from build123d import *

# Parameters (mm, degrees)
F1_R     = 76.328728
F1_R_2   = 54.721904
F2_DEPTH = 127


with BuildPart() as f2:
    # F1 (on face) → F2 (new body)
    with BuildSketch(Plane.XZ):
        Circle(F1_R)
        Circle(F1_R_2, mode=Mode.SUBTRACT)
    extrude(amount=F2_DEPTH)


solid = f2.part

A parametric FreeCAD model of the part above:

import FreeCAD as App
import Part
import Sketcher

V = App.Vector

doc = App.newDocument("Part")
params = doc.addObject("Spreadsheet::Sheet", "Params")
for row, (alias, value) in enumerate([
    ("pad1_length", "5 in"),
], start=1):
    params.set(f"A{row}", alias)
    params.set(f"B{row}", "=" + value)
    params.setAlias(f"B{row}", alias)

body = doc.addObject("PartDesign::Body", "Body")

# Sketch on XZ plane
sketch1 = body.newObject("Sketcher::SketchObject", "Sketch")
sketch1.AttachmentSupport = (doc.getObject("XZ_Plane"), [""])
sketch1.MapMode = "FlatFace"
sketch1.addGeometry(Part.Circle(V(0, 0, 0), V(0, 0, 1), 76), False)
sketch1.addGeometry(Part.Circle(V(0, 0, 0), V(0, 0, 1), 55), False)
sketch1.addConstraint(Sketcher.Constraint("Coincident", 0, 3, -1, 1))
sketch1.addConstraint(Sketcher.Constraint("Coincident", 1, 3, -1, 1))
sketch1.addConstraint(Sketcher.Constraint("Diameter", 1, 109.443808))
sketch1.addConstraint(Sketcher.Constraint("Diameter", 0, 152.657456))
pad1 = body.newObject("PartDesign::Pad", "Pad")
pad1.Profile = sketch1
pad1.setExpression("Length", "Params.pad1_length")

doc.recompute()
